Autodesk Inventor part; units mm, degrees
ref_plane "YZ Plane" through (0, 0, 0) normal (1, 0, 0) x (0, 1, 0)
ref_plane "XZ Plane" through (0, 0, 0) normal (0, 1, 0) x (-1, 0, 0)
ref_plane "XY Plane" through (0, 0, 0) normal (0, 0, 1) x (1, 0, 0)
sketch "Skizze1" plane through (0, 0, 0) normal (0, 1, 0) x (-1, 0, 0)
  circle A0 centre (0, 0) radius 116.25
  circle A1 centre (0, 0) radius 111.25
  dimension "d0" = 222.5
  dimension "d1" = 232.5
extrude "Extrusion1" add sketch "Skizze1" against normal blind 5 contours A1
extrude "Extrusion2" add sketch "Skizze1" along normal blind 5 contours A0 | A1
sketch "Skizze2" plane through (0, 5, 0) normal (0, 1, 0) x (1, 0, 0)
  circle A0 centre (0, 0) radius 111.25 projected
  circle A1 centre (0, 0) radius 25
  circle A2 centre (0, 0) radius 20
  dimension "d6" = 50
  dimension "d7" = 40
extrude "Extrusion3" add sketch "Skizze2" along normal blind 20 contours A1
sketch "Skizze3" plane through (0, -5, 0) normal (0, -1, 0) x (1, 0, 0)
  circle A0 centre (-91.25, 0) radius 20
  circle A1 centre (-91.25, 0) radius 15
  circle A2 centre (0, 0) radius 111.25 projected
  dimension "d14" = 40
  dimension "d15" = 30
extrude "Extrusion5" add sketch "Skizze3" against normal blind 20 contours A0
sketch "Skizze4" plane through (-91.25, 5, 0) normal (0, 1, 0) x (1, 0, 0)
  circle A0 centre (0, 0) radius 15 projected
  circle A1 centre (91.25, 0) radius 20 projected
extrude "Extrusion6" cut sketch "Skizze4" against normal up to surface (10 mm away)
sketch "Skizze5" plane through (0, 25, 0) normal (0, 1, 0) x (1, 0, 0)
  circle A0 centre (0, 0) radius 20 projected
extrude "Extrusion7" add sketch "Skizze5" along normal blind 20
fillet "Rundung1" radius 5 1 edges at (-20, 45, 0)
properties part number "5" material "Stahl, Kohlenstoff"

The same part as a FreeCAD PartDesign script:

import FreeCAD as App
import Part
import Sketcher
Q = App.Units.Quantity


def edges_at(feature, points):
    """Names of the edges that pass closest to the given points."""
    edges = feature.Shape.Edges
    near = lambda p: min(range(len(edges)), key=lambda i: edges[i].distToShape(Part.Vertex(*p))[0])
    return sorted({f"Edge{near(p) + 1}" for p in points})

doc = App.newDocument("Part")
body = doc.addObject("PartDesign::Body", "Body")
body.AllowCompound = True

# Sketch on XZ plane
sketch1 = doc.addObject("Sketcher::SketchObject", "Sketch")
body.addObject(sketch1)
sketch1.AttachmentSupport = (doc.XZ_Plane, [""])
sketch1.MapMode = "FlatFace"
sketch1.addGeometry(Part.Circle(App.Vector(0, 0, 0), App.Vector(0, 0, 1), 111), False)
sketch1.addConstraint([
    Sketcher.Constraint("Coincident", 0, 3, -1, 1),
    Sketcher.Constraint("Diameter", 0, Q("222.5 mm")),
])
pad1 = doc.addObject("PartDesign::Pad", "Pad")
body.addObject(pad1)
pad1.Profile = sketch1
pad1.Length = 5

# Sketch on XZ plane
sketch2 = doc.addObject("Sketcher::SketchObject", "Sketch001")
body.addObject(sketch2)
sketch2.AttachmentSupport = (doc.XZ_Plane, [""])
sketch2.MapMode = "FlatFace"
sketch2.addGeometry(Part.Circle(App.Vector(0, 0, 0), App.Vector(0, 0, 1), 116), False)
sketch2.addConstraint([
    Sketcher.Constraint("Coincident", 0, 3, -1, 1),
    Sketcher.Constraint("Diameter", 0, Q("232.5 mm")),
])
pad2 = doc.addObject("PartDesign::Pad", "Pad001")
body.addObject(pad2)
pad2.Profile = sketch2
pad2.Length = 5
pad2.Reversed = True

# Sketch on XZ plane
sketch3 = doc.addObject("Sketcher::SketchObject", "Sketch002")
body.addObject(sketch3)
sketch3.AttachmentSupport = (doc.XZ_Plane, [""])
sketch3.MapMode = "FlatFace"
sketch3.AttachmentOffset = App.Placement(App.Vector(0, 0, -5), App.Rotation())
sketch3.addGeometry([
    Part.Circle(App.Vector(0, 0, 0), App.Vector(0, 0, 1), 25),
    Part.Circle(App.Vector(0, 0, 0), App.Vector(0, 0, 1), 20),
], False)
sketch3.addConstraint([
    Sketcher.Constraint("Coincident", 0, 3, -1, 1),
    Sketcher.Constraint("Coincident", 1, 3, -1, 1),
    Sketcher.Constraint("Diameter", 0, Q("50 mm")),
    Sketcher.Constraint("Diameter", 1, Q("40 mm")),
])
pad3 = doc.addObject("PartDesign::Pad", "Pad002")
body.addObject(pad3)
pad3.Profile = sketch3
pad3.Length = 20
pad3.Reversed = True

# Sketch on XZ plane
sketch4 = doc.addObject("Sketcher::SketchObject", "Sketch003")
body.addObject(sketch4)
sketch4.AttachmentSupport = (doc.XZ_Plane, [""])
sketch4.MapMode = "FlatFace"
sketch4.AttachmentOffset = App.Placement(App.Vector(0, 0, 5), App.Rotation())
sketch4.addGeometry([
    Part.Circle(App.Vector(-91, 0, 0), App.Vector(0, 0, 1), 20),
    Part.Circle(App.Vector(-91, 0, 0), App.Vector(0, 0, 1), 15),
], False)
sketch4.addConstraint([
    Sketcher.Constraint("Coincident", 1, 3, 0, 3),
    Sketcher.Constraint("PointOnObject", 0, 3, -1),
    Sketcher.Constraint("Diameter", 0, Q("40 mm")),
    Sketcher.Constraint("Diameter", 1, Q("30 mm")),
    Sketcher.Constraint("DistanceX", 0, 3, -1, 1, Q("91.25 mm")),
])
pad4 = doc.addObject("PartDesign::Pad", "Pad003")
body.addObject(pad4)
pad4.Profile = sketch4
pad4.Length = 20
pad4.Reversed = True

# Sketch on XZ plane
sketch5 = doc.addObject("Sketcher::SketchObject", "Sketch004")
body.addObject(sketch5)
sketch5.AttachmentSupport = (doc.XZ_Plane, [""])
sketch5.MapMode = "FlatFace"
sketch5.AttachmentOffset = App.Placement(App.Vector(0, 0, -5), App.Rotation())
sketch5.addGeometry([
    Part.Circle(App.Vector(-91, 0, 0), App.Vector(0, 0, 1), 15),
    Part.Circle(App.Vector(0, 0, 0), App.Vector(0, 0, 1), 20),
], False)
sketch5.addConstraint([
    Sketcher.Constraint("Coincident", 1, 3, -1, 1),
    Sketcher.Constraint("PointOnObject", 0, 3, -1),
    Sketcher.Constraint("Diameter", 0, Q("30 mm")),
    Sketcher.Constraint("Diameter", 1, Q("40 mm")),
    Sketcher.Constraint("DistanceX", 0, 3, -1, 1, Q("91.25 mm")),
])
pocket1 = doc.addObject("PartDesign::Pocket", "Pocket")
body.addObject(pocket1)
pocket1.Profile = sketch5
pocket1.Length = 10
pocket1.Reversed = True

# Sketch on XZ plane
sketch6 = doc.addObject("Sketcher::SketchObject", "Sketch005")
body.addObject(sketch6)
sketch6.AttachmentSupport = (doc.XZ_Plane, [""])
sketch6.MapMode = "FlatFace"
sketch6.AttachmentOffset = App.Placement(App.Vector(0, 0, -25), App.Rotation())
sketch6.addGeometry(Part.Circle(App.Vector(0, 0, 0), App.Vector(0, 0, 1), 20), False)
sketch6.addConstraint([
    Sketcher.Constraint("Coincident", 0, 3, -1, 1),
    Sketcher.Constraint("Diameter", 0, Q("40 mm")),
])
pad5 = doc.addObject("PartDesign::Pad", "Pad004")
body.addObject(pad5)
pad5.Profile = sketch6
pad5.Length = 20
pad5.Reversed = True
doc.recompute()

fillet = doc.addObject("PartDesign::Fillet", "Fillet")
body.addObject(fillet)
fillet.Base = (pad5, edges_at(pad5, [(-20, 45, 0)]))
fillet.Radius = 5

doc.recompute()
